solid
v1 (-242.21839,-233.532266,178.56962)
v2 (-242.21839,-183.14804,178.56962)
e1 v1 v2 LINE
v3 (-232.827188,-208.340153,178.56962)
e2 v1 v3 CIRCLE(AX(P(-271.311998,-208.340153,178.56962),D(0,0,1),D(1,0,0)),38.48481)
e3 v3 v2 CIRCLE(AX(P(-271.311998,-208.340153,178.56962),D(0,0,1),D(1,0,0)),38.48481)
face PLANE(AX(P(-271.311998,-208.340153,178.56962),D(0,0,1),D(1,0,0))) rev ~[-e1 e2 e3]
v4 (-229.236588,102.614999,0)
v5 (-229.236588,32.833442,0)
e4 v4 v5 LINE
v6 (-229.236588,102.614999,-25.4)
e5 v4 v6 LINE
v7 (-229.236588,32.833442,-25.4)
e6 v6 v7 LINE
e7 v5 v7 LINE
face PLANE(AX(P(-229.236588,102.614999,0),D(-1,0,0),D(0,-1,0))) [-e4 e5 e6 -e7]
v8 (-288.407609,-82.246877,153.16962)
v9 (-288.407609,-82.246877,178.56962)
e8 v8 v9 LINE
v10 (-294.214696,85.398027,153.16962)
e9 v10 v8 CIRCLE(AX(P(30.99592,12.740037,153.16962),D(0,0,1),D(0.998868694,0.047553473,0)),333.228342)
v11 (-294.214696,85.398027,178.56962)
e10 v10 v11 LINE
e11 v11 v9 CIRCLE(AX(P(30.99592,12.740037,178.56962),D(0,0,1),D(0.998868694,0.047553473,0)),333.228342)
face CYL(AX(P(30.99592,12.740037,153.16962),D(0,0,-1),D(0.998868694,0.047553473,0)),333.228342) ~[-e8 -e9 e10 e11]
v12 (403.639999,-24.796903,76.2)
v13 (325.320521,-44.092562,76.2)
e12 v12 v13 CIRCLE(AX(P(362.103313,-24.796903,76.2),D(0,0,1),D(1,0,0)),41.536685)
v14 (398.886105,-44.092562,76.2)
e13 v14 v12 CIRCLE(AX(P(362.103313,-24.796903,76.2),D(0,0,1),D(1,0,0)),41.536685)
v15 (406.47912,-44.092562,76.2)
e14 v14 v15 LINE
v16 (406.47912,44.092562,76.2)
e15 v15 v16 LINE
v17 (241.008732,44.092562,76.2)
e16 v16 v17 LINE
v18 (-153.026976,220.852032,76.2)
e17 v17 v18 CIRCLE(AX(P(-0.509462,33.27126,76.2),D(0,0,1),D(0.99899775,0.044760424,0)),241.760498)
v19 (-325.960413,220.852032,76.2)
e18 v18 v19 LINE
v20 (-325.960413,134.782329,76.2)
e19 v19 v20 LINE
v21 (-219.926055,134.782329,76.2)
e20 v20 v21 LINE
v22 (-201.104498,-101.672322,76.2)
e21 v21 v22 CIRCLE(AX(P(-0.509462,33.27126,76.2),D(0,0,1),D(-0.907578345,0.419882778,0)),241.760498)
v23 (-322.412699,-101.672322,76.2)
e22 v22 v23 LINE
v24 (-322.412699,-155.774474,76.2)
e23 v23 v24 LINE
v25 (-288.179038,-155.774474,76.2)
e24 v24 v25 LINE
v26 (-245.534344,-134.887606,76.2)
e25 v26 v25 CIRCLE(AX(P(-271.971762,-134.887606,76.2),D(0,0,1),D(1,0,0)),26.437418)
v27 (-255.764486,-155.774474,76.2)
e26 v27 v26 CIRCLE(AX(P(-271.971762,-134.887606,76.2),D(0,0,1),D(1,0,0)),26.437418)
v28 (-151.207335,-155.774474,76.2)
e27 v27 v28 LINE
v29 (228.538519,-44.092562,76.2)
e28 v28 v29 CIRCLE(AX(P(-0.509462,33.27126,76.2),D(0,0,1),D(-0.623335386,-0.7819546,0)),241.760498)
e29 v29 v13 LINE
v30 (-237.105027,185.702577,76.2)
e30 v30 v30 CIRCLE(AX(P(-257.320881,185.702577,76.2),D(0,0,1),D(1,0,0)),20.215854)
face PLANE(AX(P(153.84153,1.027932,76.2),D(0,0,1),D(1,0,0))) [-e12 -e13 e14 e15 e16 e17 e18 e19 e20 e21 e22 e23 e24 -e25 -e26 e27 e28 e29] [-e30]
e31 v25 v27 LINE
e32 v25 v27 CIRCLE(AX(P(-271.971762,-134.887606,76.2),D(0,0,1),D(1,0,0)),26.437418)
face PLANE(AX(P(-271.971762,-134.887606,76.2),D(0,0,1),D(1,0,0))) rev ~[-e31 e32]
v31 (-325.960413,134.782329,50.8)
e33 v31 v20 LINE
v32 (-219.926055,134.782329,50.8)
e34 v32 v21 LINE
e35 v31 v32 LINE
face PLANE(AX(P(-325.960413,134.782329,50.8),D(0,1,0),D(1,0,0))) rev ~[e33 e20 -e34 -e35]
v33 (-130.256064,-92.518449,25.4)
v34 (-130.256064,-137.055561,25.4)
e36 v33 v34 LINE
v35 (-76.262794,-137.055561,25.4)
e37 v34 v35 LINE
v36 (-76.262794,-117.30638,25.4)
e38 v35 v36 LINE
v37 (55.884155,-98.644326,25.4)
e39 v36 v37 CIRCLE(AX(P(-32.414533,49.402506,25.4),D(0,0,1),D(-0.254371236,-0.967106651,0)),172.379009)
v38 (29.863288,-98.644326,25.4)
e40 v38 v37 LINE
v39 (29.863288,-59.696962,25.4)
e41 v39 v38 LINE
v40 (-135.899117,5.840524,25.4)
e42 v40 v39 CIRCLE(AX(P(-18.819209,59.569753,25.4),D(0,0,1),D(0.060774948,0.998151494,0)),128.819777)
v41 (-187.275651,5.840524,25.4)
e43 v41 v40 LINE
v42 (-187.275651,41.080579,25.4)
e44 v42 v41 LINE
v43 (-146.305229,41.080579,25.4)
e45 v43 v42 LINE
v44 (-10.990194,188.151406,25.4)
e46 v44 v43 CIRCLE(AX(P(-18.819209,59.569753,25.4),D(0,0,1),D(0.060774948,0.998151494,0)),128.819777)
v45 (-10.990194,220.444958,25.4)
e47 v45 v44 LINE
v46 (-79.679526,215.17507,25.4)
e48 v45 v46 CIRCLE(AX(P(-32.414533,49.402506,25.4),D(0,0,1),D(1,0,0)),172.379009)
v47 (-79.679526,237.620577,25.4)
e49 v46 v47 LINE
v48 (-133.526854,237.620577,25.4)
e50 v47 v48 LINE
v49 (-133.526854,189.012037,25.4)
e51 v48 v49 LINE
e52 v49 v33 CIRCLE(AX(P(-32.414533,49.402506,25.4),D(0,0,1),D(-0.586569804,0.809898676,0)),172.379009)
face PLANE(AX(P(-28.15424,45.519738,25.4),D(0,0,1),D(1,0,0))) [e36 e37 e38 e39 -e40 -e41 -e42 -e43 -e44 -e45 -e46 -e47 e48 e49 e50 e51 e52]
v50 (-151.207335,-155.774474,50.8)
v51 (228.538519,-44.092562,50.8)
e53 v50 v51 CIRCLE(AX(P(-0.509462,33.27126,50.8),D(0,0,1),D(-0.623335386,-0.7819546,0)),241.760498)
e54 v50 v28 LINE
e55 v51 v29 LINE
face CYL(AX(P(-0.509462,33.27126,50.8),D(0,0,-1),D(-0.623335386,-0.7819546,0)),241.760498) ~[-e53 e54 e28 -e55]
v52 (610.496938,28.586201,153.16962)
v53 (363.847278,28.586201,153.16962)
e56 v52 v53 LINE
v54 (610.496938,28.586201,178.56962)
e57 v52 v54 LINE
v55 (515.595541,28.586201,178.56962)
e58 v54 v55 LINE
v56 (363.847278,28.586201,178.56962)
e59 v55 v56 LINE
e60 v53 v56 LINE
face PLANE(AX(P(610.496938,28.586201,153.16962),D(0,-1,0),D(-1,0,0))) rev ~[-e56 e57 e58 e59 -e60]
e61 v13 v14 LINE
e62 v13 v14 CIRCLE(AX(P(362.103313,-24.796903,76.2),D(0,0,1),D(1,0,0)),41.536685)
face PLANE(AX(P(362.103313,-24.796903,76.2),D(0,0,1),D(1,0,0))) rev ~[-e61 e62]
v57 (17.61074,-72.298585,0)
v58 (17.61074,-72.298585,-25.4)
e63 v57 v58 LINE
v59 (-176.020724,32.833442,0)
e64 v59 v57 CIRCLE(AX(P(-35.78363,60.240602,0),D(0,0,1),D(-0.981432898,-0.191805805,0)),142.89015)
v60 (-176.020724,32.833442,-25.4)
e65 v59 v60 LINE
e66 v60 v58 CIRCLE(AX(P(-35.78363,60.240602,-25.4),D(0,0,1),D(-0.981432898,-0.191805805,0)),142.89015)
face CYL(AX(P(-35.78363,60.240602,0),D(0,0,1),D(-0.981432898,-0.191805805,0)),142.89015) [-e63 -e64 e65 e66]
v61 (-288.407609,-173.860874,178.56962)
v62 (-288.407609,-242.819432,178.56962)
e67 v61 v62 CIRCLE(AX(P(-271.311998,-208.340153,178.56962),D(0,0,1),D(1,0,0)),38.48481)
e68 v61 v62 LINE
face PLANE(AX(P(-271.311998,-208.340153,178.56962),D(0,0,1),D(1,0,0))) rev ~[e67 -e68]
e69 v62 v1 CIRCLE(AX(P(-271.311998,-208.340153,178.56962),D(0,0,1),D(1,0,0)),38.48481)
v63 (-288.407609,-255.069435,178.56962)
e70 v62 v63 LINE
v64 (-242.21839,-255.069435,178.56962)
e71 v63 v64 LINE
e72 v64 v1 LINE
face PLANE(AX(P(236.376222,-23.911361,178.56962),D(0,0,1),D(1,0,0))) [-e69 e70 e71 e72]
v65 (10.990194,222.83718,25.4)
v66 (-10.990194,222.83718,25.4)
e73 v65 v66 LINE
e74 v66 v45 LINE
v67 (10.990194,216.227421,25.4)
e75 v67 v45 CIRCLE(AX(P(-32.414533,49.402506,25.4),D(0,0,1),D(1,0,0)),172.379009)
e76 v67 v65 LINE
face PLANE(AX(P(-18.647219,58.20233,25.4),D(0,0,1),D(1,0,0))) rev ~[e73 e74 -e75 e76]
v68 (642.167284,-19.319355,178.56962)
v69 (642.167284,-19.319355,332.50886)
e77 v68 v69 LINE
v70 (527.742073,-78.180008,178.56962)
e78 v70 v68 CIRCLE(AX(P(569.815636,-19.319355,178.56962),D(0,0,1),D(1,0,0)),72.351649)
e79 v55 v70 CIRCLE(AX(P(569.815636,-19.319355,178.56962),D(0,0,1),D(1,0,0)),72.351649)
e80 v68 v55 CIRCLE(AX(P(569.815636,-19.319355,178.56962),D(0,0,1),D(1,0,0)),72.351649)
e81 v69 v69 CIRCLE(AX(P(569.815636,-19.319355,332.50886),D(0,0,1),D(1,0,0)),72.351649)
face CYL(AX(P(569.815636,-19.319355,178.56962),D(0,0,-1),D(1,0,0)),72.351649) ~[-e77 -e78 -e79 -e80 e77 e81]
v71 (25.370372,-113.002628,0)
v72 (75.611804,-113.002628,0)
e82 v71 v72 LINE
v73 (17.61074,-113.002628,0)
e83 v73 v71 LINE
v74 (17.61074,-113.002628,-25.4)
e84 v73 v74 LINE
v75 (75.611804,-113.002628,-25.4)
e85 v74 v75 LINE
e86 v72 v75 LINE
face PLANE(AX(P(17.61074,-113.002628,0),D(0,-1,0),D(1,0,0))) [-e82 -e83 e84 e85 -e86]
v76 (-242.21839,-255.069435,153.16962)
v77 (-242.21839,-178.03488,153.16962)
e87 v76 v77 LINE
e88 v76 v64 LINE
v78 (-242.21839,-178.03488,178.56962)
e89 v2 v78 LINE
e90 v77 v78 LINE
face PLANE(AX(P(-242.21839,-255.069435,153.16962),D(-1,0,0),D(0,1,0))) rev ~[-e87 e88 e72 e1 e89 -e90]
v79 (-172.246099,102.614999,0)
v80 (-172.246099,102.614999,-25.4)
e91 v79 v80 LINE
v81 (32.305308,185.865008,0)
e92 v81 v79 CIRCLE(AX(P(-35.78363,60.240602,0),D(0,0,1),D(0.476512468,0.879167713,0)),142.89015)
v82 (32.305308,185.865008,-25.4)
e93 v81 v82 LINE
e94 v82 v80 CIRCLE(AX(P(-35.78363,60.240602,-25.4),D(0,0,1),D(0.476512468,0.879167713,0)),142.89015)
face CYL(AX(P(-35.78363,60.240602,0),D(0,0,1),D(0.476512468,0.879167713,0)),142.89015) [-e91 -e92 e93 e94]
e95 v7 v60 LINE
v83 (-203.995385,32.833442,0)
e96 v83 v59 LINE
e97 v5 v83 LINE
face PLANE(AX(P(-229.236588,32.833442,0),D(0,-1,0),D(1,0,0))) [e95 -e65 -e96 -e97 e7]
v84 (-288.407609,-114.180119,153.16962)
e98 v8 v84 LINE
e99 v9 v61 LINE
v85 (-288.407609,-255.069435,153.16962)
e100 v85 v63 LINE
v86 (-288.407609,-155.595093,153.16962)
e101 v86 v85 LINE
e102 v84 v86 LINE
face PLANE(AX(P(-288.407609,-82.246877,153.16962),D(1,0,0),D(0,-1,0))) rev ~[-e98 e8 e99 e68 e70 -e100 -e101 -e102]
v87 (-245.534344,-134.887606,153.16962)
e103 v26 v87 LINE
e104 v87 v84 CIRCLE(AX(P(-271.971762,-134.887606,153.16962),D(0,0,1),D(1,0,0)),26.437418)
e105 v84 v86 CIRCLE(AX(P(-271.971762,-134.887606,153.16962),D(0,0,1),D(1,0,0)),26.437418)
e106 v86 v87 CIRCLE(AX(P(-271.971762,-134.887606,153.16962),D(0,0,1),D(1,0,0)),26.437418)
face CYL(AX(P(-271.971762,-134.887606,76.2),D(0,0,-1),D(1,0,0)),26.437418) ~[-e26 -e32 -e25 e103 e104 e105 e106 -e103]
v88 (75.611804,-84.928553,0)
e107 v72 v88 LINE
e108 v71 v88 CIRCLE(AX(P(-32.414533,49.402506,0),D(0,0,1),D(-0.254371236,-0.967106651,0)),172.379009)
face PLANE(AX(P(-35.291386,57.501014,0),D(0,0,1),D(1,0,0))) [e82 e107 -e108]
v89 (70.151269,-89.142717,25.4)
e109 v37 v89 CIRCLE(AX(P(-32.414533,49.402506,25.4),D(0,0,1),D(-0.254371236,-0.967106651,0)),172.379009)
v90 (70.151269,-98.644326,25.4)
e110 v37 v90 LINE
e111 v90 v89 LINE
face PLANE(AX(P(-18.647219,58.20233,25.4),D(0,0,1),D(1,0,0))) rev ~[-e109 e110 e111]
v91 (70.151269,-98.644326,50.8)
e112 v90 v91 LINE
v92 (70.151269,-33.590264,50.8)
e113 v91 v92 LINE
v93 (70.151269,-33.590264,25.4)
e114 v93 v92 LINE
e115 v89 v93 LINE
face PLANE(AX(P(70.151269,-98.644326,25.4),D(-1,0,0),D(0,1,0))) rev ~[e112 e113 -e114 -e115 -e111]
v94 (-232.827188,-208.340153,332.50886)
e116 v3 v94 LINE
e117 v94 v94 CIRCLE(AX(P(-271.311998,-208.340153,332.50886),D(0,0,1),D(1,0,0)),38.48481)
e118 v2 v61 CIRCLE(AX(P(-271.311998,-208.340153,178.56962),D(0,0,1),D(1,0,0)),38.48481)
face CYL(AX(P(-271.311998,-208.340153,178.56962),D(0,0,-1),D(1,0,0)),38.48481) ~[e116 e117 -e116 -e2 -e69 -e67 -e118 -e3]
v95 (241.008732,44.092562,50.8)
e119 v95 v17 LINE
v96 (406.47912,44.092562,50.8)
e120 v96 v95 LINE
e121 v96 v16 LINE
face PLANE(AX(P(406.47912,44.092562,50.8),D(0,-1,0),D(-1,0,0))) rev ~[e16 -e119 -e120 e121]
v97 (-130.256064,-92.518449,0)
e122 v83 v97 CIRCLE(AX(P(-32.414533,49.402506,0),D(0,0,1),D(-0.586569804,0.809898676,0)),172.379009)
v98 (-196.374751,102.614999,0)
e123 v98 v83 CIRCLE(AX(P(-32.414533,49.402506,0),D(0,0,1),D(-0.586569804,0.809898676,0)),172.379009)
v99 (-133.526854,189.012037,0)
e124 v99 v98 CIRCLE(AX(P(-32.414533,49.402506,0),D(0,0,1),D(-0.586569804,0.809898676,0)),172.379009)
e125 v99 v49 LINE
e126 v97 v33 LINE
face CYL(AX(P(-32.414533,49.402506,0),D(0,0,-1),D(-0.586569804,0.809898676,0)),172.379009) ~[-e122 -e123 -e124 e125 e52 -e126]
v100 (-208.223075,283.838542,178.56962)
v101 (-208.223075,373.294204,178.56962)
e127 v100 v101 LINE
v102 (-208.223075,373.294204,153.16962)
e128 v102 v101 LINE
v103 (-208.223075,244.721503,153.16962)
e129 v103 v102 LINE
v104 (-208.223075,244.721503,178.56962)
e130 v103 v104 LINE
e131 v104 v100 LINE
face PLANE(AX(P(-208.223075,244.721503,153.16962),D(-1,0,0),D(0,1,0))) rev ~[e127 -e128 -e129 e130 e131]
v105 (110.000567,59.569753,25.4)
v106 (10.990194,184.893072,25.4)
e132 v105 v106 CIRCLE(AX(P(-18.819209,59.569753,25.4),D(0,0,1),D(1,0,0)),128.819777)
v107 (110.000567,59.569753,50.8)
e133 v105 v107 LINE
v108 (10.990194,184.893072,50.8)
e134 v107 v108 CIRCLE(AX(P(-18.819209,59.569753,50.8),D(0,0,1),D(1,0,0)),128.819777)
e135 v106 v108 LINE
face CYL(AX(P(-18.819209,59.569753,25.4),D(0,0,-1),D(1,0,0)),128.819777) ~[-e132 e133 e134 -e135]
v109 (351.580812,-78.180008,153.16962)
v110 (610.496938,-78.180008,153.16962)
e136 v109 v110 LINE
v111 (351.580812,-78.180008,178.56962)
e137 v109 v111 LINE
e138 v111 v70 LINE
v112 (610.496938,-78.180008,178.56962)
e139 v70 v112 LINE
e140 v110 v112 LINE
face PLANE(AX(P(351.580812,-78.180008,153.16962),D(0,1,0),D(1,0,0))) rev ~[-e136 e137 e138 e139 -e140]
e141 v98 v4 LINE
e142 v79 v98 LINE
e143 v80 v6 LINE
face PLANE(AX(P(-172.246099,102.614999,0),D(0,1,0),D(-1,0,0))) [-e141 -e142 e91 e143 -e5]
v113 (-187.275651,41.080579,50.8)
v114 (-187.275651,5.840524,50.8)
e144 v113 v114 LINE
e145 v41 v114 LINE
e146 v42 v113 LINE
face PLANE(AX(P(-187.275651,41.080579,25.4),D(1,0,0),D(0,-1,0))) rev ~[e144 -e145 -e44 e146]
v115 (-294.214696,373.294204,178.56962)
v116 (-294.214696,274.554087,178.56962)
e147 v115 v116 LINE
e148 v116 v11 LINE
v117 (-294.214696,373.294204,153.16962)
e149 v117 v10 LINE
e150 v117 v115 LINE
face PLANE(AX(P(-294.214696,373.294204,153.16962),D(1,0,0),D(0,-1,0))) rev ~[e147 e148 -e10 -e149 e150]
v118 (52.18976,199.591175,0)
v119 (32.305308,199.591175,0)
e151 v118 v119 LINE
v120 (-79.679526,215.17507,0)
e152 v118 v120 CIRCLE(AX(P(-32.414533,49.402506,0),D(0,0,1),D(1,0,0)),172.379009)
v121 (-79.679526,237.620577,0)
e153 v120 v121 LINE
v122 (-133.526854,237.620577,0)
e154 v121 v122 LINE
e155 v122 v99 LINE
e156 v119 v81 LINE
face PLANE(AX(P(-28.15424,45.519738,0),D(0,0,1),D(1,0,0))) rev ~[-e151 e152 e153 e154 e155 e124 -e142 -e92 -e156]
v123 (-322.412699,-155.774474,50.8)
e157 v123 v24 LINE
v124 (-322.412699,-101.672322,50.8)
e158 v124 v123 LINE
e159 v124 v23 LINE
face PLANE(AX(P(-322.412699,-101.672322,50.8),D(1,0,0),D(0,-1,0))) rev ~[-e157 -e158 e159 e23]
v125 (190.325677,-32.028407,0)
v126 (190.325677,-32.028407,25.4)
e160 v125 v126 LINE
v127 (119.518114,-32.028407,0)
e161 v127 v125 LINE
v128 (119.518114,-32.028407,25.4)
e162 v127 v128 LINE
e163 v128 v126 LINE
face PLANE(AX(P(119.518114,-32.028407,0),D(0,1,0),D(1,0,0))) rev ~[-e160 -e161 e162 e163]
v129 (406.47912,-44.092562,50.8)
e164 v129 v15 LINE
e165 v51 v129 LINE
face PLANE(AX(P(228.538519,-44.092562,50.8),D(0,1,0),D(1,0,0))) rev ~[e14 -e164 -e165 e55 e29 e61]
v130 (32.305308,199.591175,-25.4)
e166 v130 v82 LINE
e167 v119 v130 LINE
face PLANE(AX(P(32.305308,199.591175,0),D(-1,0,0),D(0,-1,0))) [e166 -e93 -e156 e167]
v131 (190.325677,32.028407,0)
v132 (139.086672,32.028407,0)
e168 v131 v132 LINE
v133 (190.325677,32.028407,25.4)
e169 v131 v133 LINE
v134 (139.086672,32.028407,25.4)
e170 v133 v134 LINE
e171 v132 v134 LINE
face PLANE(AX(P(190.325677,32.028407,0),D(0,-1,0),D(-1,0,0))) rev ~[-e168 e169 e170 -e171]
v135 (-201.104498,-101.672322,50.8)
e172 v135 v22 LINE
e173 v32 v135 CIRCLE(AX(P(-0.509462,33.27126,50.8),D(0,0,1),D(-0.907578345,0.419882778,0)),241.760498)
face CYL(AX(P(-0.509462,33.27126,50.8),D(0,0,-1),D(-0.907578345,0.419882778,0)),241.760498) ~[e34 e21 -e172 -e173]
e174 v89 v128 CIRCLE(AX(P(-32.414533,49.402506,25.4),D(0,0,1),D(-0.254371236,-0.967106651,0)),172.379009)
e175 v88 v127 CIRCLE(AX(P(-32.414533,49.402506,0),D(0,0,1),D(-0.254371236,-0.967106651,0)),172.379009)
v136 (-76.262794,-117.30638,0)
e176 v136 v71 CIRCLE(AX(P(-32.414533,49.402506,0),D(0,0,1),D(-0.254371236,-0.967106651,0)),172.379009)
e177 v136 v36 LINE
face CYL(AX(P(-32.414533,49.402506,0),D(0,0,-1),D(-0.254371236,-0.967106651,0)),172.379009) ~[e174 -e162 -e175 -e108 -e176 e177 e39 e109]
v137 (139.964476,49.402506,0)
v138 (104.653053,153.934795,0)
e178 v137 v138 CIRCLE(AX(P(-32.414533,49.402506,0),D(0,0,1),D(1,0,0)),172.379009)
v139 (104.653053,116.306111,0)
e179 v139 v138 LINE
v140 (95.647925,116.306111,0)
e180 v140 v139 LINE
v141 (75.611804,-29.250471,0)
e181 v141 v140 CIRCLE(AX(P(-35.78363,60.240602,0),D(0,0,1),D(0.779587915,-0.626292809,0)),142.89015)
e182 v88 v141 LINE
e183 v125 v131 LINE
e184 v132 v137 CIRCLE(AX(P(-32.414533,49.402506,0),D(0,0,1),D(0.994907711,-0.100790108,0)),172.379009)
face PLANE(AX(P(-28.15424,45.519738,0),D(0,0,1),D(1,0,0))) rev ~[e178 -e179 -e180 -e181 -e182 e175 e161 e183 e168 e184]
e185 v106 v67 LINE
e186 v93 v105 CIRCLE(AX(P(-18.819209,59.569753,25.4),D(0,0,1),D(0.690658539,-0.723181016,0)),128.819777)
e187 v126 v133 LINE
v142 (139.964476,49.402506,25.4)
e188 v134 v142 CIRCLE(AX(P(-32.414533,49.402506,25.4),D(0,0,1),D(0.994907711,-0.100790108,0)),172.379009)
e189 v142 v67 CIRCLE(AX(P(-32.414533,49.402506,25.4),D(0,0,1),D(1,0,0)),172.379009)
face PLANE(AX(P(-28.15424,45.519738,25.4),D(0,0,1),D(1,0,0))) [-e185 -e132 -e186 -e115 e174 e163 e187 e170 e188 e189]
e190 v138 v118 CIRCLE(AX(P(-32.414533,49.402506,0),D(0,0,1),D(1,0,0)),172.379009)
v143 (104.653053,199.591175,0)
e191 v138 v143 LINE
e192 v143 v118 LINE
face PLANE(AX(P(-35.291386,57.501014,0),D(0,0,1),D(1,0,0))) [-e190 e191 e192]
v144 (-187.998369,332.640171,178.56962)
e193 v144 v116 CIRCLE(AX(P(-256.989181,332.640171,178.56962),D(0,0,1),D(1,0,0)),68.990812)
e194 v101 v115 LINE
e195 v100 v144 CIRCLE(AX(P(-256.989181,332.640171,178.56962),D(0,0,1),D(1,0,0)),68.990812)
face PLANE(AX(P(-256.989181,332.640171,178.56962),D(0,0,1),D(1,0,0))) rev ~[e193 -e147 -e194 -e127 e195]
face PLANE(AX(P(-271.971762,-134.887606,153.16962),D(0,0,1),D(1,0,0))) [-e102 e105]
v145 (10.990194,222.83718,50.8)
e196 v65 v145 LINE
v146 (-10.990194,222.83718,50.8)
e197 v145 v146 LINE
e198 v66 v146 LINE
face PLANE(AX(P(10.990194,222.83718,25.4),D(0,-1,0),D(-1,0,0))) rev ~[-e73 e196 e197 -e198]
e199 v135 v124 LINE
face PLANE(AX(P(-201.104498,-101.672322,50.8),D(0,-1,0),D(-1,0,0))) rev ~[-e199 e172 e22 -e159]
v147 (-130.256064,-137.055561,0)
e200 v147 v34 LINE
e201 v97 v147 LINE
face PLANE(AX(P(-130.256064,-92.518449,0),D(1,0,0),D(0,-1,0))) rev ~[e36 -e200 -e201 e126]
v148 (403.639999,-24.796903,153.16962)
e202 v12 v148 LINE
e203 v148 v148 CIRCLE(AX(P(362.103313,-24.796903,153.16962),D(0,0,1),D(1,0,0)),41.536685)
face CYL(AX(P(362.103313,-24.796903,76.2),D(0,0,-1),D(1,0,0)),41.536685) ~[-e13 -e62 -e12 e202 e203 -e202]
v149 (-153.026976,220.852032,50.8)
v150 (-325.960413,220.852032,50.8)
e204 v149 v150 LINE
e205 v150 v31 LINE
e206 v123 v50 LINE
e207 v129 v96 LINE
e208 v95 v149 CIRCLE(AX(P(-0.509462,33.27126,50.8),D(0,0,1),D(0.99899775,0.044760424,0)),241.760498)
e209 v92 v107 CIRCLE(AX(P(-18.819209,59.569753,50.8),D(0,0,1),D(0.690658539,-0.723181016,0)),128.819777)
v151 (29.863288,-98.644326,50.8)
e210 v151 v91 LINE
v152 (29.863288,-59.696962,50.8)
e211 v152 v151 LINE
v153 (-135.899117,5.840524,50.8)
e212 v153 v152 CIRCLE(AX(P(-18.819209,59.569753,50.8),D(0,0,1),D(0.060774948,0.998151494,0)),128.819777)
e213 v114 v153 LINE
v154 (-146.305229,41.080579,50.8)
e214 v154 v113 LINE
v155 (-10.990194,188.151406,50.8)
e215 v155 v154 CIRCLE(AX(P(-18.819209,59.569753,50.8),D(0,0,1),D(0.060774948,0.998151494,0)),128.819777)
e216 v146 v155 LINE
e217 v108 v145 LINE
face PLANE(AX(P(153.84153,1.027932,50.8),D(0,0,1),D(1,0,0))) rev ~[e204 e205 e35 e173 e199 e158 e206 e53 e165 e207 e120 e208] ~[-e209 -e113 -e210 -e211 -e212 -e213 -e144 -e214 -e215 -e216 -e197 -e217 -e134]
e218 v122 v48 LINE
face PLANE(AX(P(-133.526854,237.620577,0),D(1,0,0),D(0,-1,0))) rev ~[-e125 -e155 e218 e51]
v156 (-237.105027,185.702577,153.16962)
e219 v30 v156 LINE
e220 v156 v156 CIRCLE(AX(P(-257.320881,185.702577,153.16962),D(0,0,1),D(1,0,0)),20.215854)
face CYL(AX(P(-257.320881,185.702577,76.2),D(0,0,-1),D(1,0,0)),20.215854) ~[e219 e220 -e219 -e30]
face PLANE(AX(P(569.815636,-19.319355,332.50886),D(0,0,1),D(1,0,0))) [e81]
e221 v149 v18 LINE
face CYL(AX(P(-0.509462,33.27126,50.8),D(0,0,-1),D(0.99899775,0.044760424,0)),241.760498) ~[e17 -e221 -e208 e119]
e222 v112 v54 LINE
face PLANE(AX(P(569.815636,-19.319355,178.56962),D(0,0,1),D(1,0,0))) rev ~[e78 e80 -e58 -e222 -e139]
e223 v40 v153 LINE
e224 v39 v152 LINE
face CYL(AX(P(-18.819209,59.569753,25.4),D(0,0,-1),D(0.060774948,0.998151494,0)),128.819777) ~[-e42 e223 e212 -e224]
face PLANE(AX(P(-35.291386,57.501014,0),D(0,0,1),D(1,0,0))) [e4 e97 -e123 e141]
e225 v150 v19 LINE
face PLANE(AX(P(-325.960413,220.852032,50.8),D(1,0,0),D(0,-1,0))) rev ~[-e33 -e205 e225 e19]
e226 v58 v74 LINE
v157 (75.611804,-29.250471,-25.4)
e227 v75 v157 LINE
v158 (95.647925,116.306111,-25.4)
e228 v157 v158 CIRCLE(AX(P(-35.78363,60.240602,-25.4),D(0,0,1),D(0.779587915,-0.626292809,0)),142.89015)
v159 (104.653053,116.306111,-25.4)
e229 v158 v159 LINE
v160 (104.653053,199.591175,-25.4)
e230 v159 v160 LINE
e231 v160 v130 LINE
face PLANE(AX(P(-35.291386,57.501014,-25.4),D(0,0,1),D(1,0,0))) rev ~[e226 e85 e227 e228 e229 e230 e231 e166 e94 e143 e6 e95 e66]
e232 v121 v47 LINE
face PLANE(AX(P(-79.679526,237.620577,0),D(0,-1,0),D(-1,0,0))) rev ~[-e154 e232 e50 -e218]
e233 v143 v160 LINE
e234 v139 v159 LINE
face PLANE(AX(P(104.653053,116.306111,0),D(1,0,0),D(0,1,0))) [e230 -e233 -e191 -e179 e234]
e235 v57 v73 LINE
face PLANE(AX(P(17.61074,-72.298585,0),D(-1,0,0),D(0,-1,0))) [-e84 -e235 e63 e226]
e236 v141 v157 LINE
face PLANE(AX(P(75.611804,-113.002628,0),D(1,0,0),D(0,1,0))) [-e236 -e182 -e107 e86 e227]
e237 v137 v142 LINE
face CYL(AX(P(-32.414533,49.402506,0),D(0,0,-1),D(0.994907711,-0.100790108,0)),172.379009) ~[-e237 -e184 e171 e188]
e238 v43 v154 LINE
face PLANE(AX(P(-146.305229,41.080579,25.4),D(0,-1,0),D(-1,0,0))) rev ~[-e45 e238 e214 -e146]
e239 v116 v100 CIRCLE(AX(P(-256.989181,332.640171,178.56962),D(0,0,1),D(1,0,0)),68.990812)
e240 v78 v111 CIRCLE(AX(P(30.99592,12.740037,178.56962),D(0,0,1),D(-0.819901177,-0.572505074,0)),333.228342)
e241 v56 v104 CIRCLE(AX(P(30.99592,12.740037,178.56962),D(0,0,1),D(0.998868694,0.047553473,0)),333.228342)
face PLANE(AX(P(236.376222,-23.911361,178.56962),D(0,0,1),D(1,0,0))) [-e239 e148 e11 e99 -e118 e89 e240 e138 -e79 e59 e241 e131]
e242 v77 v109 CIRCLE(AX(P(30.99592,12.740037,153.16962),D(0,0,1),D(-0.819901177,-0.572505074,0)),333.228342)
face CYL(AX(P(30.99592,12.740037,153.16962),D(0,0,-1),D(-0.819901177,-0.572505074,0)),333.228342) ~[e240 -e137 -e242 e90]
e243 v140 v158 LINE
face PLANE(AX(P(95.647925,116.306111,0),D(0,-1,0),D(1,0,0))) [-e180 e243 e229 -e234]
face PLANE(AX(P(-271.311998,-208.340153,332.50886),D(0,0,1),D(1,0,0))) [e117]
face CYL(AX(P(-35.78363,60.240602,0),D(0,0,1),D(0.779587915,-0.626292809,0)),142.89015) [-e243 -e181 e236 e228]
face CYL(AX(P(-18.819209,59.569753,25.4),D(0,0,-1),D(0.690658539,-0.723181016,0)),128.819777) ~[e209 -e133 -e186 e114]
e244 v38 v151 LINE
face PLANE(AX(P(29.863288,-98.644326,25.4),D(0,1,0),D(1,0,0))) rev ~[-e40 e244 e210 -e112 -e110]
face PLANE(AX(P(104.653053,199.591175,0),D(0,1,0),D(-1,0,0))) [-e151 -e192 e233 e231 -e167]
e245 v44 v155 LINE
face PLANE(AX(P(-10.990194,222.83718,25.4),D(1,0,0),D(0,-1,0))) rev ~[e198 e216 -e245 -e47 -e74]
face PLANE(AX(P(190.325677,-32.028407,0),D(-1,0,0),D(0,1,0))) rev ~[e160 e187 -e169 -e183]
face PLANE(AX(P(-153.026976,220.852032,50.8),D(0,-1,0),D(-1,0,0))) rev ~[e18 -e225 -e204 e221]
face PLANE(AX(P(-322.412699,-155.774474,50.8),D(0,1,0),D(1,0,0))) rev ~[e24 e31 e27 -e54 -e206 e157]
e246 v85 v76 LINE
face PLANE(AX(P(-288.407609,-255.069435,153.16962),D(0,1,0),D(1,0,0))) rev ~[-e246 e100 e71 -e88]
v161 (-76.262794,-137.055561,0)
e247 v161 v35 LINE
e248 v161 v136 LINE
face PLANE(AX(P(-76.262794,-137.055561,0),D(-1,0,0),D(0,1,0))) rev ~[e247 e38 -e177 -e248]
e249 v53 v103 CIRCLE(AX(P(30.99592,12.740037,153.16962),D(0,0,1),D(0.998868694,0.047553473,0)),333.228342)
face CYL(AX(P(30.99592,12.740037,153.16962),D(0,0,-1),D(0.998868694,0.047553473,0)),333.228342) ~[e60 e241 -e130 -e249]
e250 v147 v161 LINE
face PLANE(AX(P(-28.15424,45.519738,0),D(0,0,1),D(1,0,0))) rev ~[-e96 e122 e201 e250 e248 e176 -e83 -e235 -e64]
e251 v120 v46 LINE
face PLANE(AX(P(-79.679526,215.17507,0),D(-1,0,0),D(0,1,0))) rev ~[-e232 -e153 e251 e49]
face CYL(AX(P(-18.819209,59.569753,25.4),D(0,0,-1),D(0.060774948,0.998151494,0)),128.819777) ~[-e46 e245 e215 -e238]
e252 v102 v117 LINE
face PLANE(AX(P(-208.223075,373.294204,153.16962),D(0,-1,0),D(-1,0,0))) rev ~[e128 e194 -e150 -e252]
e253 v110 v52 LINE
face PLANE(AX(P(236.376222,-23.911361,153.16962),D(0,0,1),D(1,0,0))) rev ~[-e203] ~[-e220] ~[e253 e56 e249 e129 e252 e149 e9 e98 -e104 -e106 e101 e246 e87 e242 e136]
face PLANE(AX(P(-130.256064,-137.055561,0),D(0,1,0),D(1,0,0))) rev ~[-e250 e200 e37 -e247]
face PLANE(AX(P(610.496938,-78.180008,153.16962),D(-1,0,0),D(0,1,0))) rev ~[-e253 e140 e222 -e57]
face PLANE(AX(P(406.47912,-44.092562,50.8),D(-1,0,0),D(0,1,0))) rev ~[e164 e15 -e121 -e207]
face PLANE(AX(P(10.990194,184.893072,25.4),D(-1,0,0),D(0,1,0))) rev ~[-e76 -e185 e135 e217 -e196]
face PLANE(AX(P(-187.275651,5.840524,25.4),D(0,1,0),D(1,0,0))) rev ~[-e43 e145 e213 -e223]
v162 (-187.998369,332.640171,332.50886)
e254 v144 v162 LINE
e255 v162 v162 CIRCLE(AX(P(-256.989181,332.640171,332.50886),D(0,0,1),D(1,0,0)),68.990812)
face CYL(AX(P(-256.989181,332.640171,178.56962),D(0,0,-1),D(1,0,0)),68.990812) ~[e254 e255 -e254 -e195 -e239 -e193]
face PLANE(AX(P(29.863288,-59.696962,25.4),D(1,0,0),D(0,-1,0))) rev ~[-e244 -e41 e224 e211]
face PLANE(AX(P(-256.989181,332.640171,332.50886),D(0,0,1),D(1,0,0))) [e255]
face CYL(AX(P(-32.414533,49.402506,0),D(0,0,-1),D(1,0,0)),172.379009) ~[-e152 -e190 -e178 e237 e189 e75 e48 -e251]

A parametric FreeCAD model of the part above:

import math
import FreeCAD as App
import Part
import Sketcher
from FreeCAD import Vector
Q = App.Units.Quantity

doc = App.newDocument("Part")
body = doc.addObject("PartDesign::Body", "Body")

sketch1 = body.newObject("Sketcher::SketchObject", "Sketch")
sketch1.AttachmentSupport = (doc.getObject("XY_Plane"), [""])
sketch1.MapMode = "FlatFace"
sketch1.addGeometry([
    Part.ArcOfCircle(Part.Circle(Vector(-32, 49, 0), Vector(0, 0, 1), 172), math.radians(-5.78), math.radians(0)),
    Part.ArcOfCircle(Part.Circle(Vector(-32, 49, 0), Vector(0, 0, 1), 172), math.radians(0), math.radians(106)),
    Part.LineSegment(Vector(-80, 215, 0), Vector(-80, 238, 0)),
    Part.LineSegment(Vector(-80, 238, 0), Vector(-134, 238, 0)),
    Part.LineSegment(Vector(-134, 238, 0), Vector(-134, 189, 0)),
    Part.ArcOfCircle(Part.Circle(Vector(-32, 49, 0), Vector(0, 0, 1), 172), math.radians(126), math.radians(235)),
    Part.LineSegment(Vector(-130, -93, 0), Vector(-130, -137, 0)),
    Part.LineSegment(Vector(-130, -137, 0), Vector(-76, -137, 0)),
    Part.LineSegment(Vector(-76, -137, 0), Vector(-76, -117, 0)),
    Part.ArcOfCircle(Part.Circle(Vector(-32, 49, 0), Vector(0, 0, 1), 172), math.radians(-105), math.radians(-28)),
    Part.LineSegment(Vector(120, -32, 0), Vector(190, -32, 0)),
    Part.LineSegment(Vector(190, -32, 0), Vector(190, 32, 0)),
    Part.LineSegment(Vector(190, 32, 0), Vector(139, 32, 0)),
], False)
sketch1.addConstraint([
    Sketcher.Constraint("Tangent", 0, 2, 1, 1),
    Sketcher.Constraint("Coincident", 1, 2, 2, 1),
    Sketcher.Constraint("Coincident", 2, 2, 3, 1),
    Sketcher.Constraint("Coincident", 3, 2, 4, 1),
    Sketcher.Constraint("Coincident", 4, 2, 5, 1),
    Sketcher.Constraint("Coincident", 5, 2, 6, 1),
    Sketcher.Constraint("Coincident", 6, 2, 7, 1),
    Sketcher.Constraint("Coincident", 7, 2, 8, 1),
    Sketcher.Constraint("Coincident", 8, 2, 9, 1),
    Sketcher.Constraint("Coincident", 9, 2, 10, 1),
    Sketcher.Constraint("Coincident", 10, 2, 11, 1),
    Sketcher.Constraint("Coincident", 11, 2, 12, 1),
    Sketcher.Constraint("Coincident", 12, 2, 0, 1),
    Sketcher.Constraint("Vertical", 2),
    Sketcher.Constraint("Horizontal", 3),
    Sketcher.Constraint("Vertical", 4),
    Sketcher.Constraint("Vertical", 6),
    Sketcher.Constraint("Horizontal", 7),
    Sketcher.Constraint("Vertical", 8),
    Sketcher.Constraint("Horizontal", 10),
    Sketcher.Constraint("Vertical", 11),
    Sketcher.Constraint("Horizontal", 12),
    Sketcher.Constraint("Coincident", 5, 3, 0, 3),
    Sketcher.Constraint("Coincident", 9, 3, 0, 3),
    Sketcher.Constraint("Equal", 0, 1),
    Sketcher.Constraint("Equal", 1, 5),
    Sketcher.Constraint("Equal", 5, 9),
    Sketcher.Constraint("Horizontal", 9, 3, 0, 2),
    Sketcher.Constraint("Radius", 0, Q("172.379009 mm")),
    Sketcher.Constraint("DistanceX", 3, 2, 1, 3, Q("3.9808001 in")),
    Sketcher.Constraint("DistanceX", 7, 1, 7, 2, Q("53.99327 mm")),
    Sketcher.Constraint("DistanceY", 4, 2, 4, 1, Q("48.608541 mm")),
    Sketcher.Constraint("DistanceY", 6, 2, 6, 1, Q("44.537112 mm")),
    Sketcher.Constraint("DistanceY", 8, 1, 8, 2, Q("19.749181 mm")),
    Sketcher.Constraint("DistanceX", 0, 2, 10, 2, Q("50.361202 mm")),
    Sketcher.Constraint("DistanceY", 11, 2, 0, 2, Q("17.374099 mm")),
    Sketcher.Constraint("DistanceX", 3, 2, 3, 1, Q("53.847328 mm")),
    Sketcher.Constraint("DistanceX", 10, 1, 10, 2, Q("70.807564 mm")),
    Sketcher.Constraint("DistanceY", -1, 1, 1, 2, Q("215.17507 mm")),
    Sketcher.Constraint("DistanceX", 0, 3, -1, 1, Q("32.414533 mm")),
])
pad1 = body.newObject("PartDesign::Pad", "Pad")
pad1.Profile = sketch1
pad1.Length = Q("1 in")

sketch2 = body.newObject("Sketcher::SketchObject", "Sketch001")
sketch2.AttachmentSupport = (doc.getObject("XY_Plane"), [""])
sketch2.MapMode = "FlatFace"
sketch2.addGeometry([
    Part.ArcOfCircle(Part.Circle(Vector(-36, 60, 0), Vector(0, 0, 1), 143), math.radians(-39), math.radians(23)),
    Part.LineSegment(Vector(96, 116, 0), Vector(105, 116, 0)),
    Part.LineSegment(Vector(105, 116, 0), Vector(105, 200, 0)),
    Part.LineSegment(Vector(105, 200, 0), Vector(32, 200, 0)),
    Part.LineSegment(Vector(32, 200, 0), Vector(32, 186, 0)),
    Part.ArcOfCircle(Part.Circle(Vector(-36, 60, 0), Vector(0, 0, 1), 143), math.radians(62), math.radians(163)),
    Part.LineSegment(Vector(-172, 103, 0), Vector(-229, 103, 0)),
    Part.LineSegment(Vector(-229, 103, 0), Vector(-229, 33, 0)),
    Part.LineSegment(Vector(-229, 33, 0), Vector(-176, 33, 0)),
    Part.ArcOfCircle(Part.Circle(Vector(-36, 60, 0), Vector(0, 0, 1), 143), math.radians(-169), math.radians(-68)),
    Part.LineSegment(Vector(18, -72, 0), Vector(18, -113, 0)),
    Part.LineSegment(Vector(18, -113, 0), Vector(76, -113, 0)),
    Part.LineSegment(Vector(76, -113, 0), Vector(76, -29, 0)),
], False)
sketch2.addConstraint([
    Sketcher.Constraint("Coincident", 0, 2, 1, 1),
    Sketcher.Constraint("Coincident", 1, 2, 2, 1),
    Sketcher.Constraint("Coincident", 2, 2, 3, 1),
    Sketcher.Constraint("Coincident", 3, 2, 4, 1),
    Sketcher.Constraint("Coincident", 4, 2, 5, 1),
    Sketcher.Constraint("Coincident", 5, 2, 6, 1),
    Sketcher.Constraint("Coincident", 6, 2, 7, 1),
    Sketcher.Constraint("Coincident", 7, 2, 8, 1),
    Sketcher.Constraint("Coincident", 8, 2, 9, 1),
    Sketcher.Constraint("Coincident", 9, 2, 10, 1),
    Sketcher.Constraint("Coincident", 10, 2, 11, 1),
    Sketcher.Constraint("Coincident", 11, 2, 12, 1),
    Sketcher.Constraint("Coincident", 12, 2, 0, 1),
    Sketcher.Constraint("Horizontal", 1),
    Sketcher.Constraint("Vertical", 2),
    Sketcher.Constraint("Horizontal", 3),
    Sketcher.Constraint("Vertical", 4),
    Sketcher.Constraint("Horizontal", 6),
    Sketcher.Constraint("Vertical", 7),
    Sketcher.Constraint("Horizontal", 8),
    Sketcher.Constraint("Vertical", 10),
    Sketcher.Constraint("Horizontal", 11),
    Sketcher.Constraint("Vertical", 12),
    Sketcher.Constraint("Coincident", 5, 3, 0, 3),
    Sketcher.Constraint("Coincident", 9, 3, 0, 3),
    Sketcher.Constraint("Equal", 0, 5),
    Sketcher.Constraint("Equal", 5, 9),
    Sketcher.Constraint("Radius", 0, Q("142.89015 mm")),
    Sketcher.Constraint("DistanceX", 1, 1, 1, 2, Q("9.005128 mm")),
    Sketcher.Constraint("DistanceX", 6, 2, 6, 1, Q("56.990489 mm")),
    Sketcher.Constraint("DistanceX", 5, 2, -1, 1, Q("172.246099 mm")),
    Sketcher.Constraint("DistanceY", -1, 1, 5, 2, Q("102.614999 mm")),
    Sketcher.Constraint("DistanceX", 3, 2, 3, 1, Q("72.347745 mm")),
    Sketcher.Constraint("DistanceX", 8, 1, 8, 2, Q("53.215864 mm")),
    Sketcher.Constraint("DistanceX", 11, 1, 11, 2, Q("58.001064 mm")),
    Sketcher.Constraint("DistanceY", 2, 1, 2, 2, Q("83.285064 mm")),
    Sketcher.Constraint("DistanceY", 4, 2, 4, 1, Q("13.726166 mm")),
    Sketcher.Constraint("DistanceY", 7, 2, 7, 1, Q("69.781557 mm")),
    Sketcher.Constraint("DistanceY", 10, 2, 10, 1, Q("40.704043 mm")),
    Sketcher.Constraint("DistanceY", 12, 1, 12, 2, Q("83.752157 mm")),
])
pad2 = body.newObject("PartDesign::Pad", "Pad001")
pad2.Profile = sketch2
pad2.Length = Q("1 in")
pad2.Reversed = True

sketch3 = body.newObject("Sketcher::SketchObject", "Sketch002")
sketch3.AttachmentSupport = (doc.getObject("XY_Plane"), [""])
sketch3.MapMode = "FlatFace"
sketch3.AttachmentOffset = App.Placement(Vector(0, 0, 1 * 25.4), App.Rotation())
sketch3.addGeometry([
    Part.ArcOfCircle(Part.Circle(Vector(-19, 60, 0), Vector(0, 0, 1), 129), math.radians(-46), math.radians(0)),
    Part.ArcOfCircle(Part.Circle(Vector(-19, 60, 0), Vector(0, 0, 1), 129), math.radians(0), math.radians(77)),
    Part.LineSegment(Vector(11, 185, 0), Vector(11, 223, 0)),
    Part.LineSegment(Vector(11, 223, 0), Vector(-11, 223, 0)),
    Part.LineSegment(Vector(-11, 223, 0), Vector(-11, 188, 0)),
    Part.ArcOfCircle(Part.Circle(Vector(-19, 60, 0), Vector(0, 0, 1), 129), math.radians(87), math.radians(188)),
    Part.LineSegment(Vector(-146, 41, 0), Vector(-187, 41, 0)),
    Part.LineSegment(Vector(-187, 41, 0), Vector(-187, 6, 0)),
    Part.LineSegment(Vector(-187, 6, 0), Vector(-136, 6, 0)),
    Part.ArcOfCircle(Part.Circle(Vector(-19, 60, 0), Vector(0, 0, 1), 129), math.radians(-155), math.radians(-68)),
    Part.LineSegment(Vector(30, -60, 0), Vector(30, -99, 0)),
    Part.LineSegment(Vector(30, -99, 0), Vector(70, -99, 0)),
    Part.LineSegment(Vector(70, -99, 0), Vector(70, -34, 0)),
], False)
sketch3.addConstraint([
    Sketcher.Constraint("Tangent", 0, 2, 1, 1),
    Sketcher.Constraint("Coincident", 1, 2, 2, 1),
    Sketcher.Constraint("Coincident", 2, 2, 3, 1),
    Sketcher.Constraint("Coincident", 3, 2, 4, 1),
    Sketcher.Constraint("Coincident", 4, 2, 5, 1),
    Sketcher.Constraint("Coincident", 5, 2, 6, 1),
    Sketcher.Constraint("Coincident", 6, 2, 7, 1),
    Sketcher.Constraint("Coincident", 7, 2, 8, 1),
    Sketcher.Constraint("Coincident", 8, 2, 9, 1),
    Sketcher.Constraint("Coincident", 9, 2, 10, 1),
    Sketcher.Constraint("Coincident", 10, 2, 11, 1),
    Sketcher.Constraint("Coincident", 11, 2, 12, 1),
    Sketcher.Constraint("Coincident", 12, 2, 0, 1),
    Sketcher.Constraint("Vertical", 2),
    Sketcher.Constraint("Horizontal", 3),
    Sketcher.Constraint("Vertical", 4),
    Sketcher.Constraint("Horizontal", 6),
    Sketcher.Constraint("Vertical", 7),
    Sketcher.Constraint("Horizontal", 8),
    Sketcher.Constraint("Vertical", 10),
    Sketcher.Constraint("Horizontal", 11),
    Sketcher.Constraint("Vertical", 12),
    Sketcher.Constraint("Coincident", 5, 3, 0, 3),
    Sketcher.Constraint("Coincident", 9, 3, 0, 3),
    Sketcher.Constraint("Equal", 0, 1),
    Sketcher.Constraint("Equal", 1, 5),
    Sketcher.Constraint("Equal", 5, 9),
    Sketcher.Constraint("Horizontal", 9, 3, 0, 2),
    Sketcher.Constraint("Radius", 0, Q("128.819777 mm")),
    Sketcher.Constraint("DistanceX", 3, 2, 3, 1, Q("21.980388 mm")),
    Sketcher.Constraint("DistanceX", 6, 2, 6, 1, Q("40.970422 mm")),
    Sketcher.Constraint("DistanceX", 11, 1, 11, 2, Q("40.287981 mm")),
    Sketcher.Constraint("DistanceX", 8, 1, 8, 2, Q("51.376534 mm")),
    Sketcher.Constraint("DistanceY", 2, 1, 2, 2, Q("37.944108 mm")),
    Sketcher.Constraint("DistanceY", 4, 2, 4, 1, Q("34.685774 mm")),
    Sketcher.Constraint("DistanceY", 7, 2, 7, 1, Q("35.240056 mm")),
    Sketcher.Constraint("DistanceY", 10, 2, 10, 1, Q("38.947364 mm")),
    Sketcher.Constraint("DistanceY", 12, 1, 12, 2, Q("65.054062 mm")),
    Sketcher.Constraint("DistanceX", 0, 3, -1, 1, Q("18.819209 mm")),
    Sketcher.Constraint("DistanceY", -1, 1, 2, 2, Q("222.83718 mm")),
])
pad3 = body.newObject("PartDesign::Pad", "Pad002")
pad3.Profile = sketch3
pad3.Length = Q("1 in")

sketch4 = body.newObject("Sketcher::SketchObject", "Sketch003")
sketch4.AttachmentSupport = (doc.getObject("XY_Plane"), [""])
sketch4.MapMode = "FlatFace"
sketch4.AttachmentOffset = App.Placement(Vector(0, 0, 2 * 25.4), App.Rotation())
sketch4.addGeometry([
    Part.LineSegment(Vector(229, -44, 0), Vector(406, -44, 0)),
    Part.LineSegment(Vector(406, -44, 0), Vector(406, 44, 0)),
    Part.LineSegment(Vector(406, 44, 0), Vector(241, 44, 0)),
    Part.ArcOfCircle(Part.Circle(Vector(-1, 33, 0), Vector(0, 0, 1), 242), math.radians(3), math.radians(129)),
    Part.LineSegment(Vector(-153, 221, 0), Vector(-326, 221, 0)),
    Part.LineSegment(Vector(-326, 221, 0), Vector(-326, 135, 0)),
    Part.LineSegment(Vector(-326, 135, 0), Vector(-220, 135, 0)),
    Part.ArcOfCircle(Part.Circle(Vector(-1, 33, 0), Vector(0, 0, 1), 242), math.radians(155), math.radians(214)),
    Part.LineSegment(Vector(-201, -102, 0), Vector(-322, -102, 0)),
    Part.LineSegment(Vector(-322, -102, 0), Vector(-322, -156, 0)),
    Part.LineSegment(Vector(-322, -156, 0), Vector(-151, -156, 0)),
    Part.ArcOfCircle(Part.Circle(Vector(-1, 33, 0), Vector(0, 0, 1), 242), math.radians(-129), math.radians(-19)),
], False)
sketch4.addConstraint([
    Sketcher.Constraint("Coincident", 0, 2, 1, 1),
    Sketcher.Constraint("Coincident", 1, 2, 2, 1),
    Sketcher.Constraint("Coincident", 2, 2, 3, 1),
    Sketcher.Constraint("Coincident", 3, 2, 4, 1),
    Sketcher.Constraint("Coincident", 4, 2, 5, 1),
    Sketcher.Constraint("Coincident", 5, 2, 6, 1),
    Sketcher.Constraint("Coincident", 6, 2, 7, 1),
    Sketcher.Constraint("Coincident", 7, 2, 8, 1),
    Sketcher.Constraint("Coincident", 8, 2, 9, 1),
    Sketcher.Constraint("Coincident", 9, 2, 10, 1),
    Sketcher.Constraint("Coincident", 10, 2, 11, 1),
    Sketcher.Constraint("Coincident", 11, 2, 0, 1),
    Sketcher.Constraint("Horizontal", 0),
    Sketcher.Constraint("Vertical", 1),
    Sketcher.Constraint("Horizontal", 2),
    Sketcher.Constraint("Horizontal", 4),
    Sketcher.Constraint("Vertical", 5),
    Sketcher.Constraint("Horizontal", 6),
    Sketcher.Constraint("Horizontal", 8),
    Sketcher.Constraint("Vertical", 9),
    Sketcher.Constraint("Horizontal", 10),
    Sketcher.Constraint("Coincident", 7, 3, 3, 3),
    Sketcher.Constraint("Coincident", 11, 3, 3, 3),
    Sketcher.Constraint("Equal", 3, 7),
    Sketcher.Constraint("Equal", 7, 11),
    Sketcher.Constraint("Radius", 3, Q("241.760498 mm")),
    Sketcher.Constraint("DistanceX", 0, 1, 0, 2, Q("177.940601 mm")),
    Sketcher.Constraint("DistanceX", 8, 2, 8, 1, Q("121.308202 mm")),
    Sketcher.Constraint("DistanceX", 7, 2, -1, 1, Q("7.9174999 in")),
    Sketcher.Constraint("DistanceX", 2, 2, 2, 1, Q("165.470388 mm")),
    Sketcher.Constraint("DistanceX", 4, 2, 4, 1, Q("172.933436 mm")),
    Sketcher.Constraint("DistanceX", 6, 1, 6, 2, Q("106.034358 mm")),
    Sketcher.Constraint("DistanceX", 10, 1, 10, 2, Q("171.205364 mm")),
    Sketcher.Constraint("DistanceY", 1, 1, 1, 2, Q("88.185124 mm")),
    Sketcher.Constraint("DistanceY", 5, 2, 5, 1, Q("86.069703 mm")),
    Sketcher.Constraint("DistanceY", 9, 2, 9, 1, Q("54.102153 mm")),
    Sketcher.Constraint("DistanceY", -1, 1, 3, 3, Q("33.27126 mm")),
])
pad4 = body.newObject("PartDesign::Pad", "Pad003")
pad4.Profile = sketch4
pad4.Length = Q("1 in")

sketch5 = body.newObject("Sketcher::SketchObject", "Sketch004")
sketch5.AttachmentSupport = (doc.getObject("XY_Plane"), [""])
sketch5.MapMode = "FlatFace"
sketch5.AttachmentOffset = App.Placement(Vector(0, 0, 3 * 25.4), App.Rotation())
sketch5.addGeometry([
    Part.Circle(Vector(-272, -135, 0), Vector(0, 0, 1), 26),
    Part.Circle(Vector(-257, 186, 0), Vector(0, 0, 1), 20),
    Part.Circle(Vector(362, -25, 0), Vector(0, 0, 1), 42),
], False)
sketch5.addConstraint([
    Sketcher.Constraint("Diameter", 1, Q("40.431708 mm")),
    Sketcher.Constraint("Diameter", 2, Q("83.073371 mm")),
    Sketcher.Constraint("Diameter", 0, Q("52.874836 mm")),
    Sketcher.Constraint("DistanceX", 1, 3, -1, 1, Q("257.320881 mm")),
    Sketcher.Constraint("DistanceX", 0, 3, 1, 3, Q("14.650881 mm")),
    Sketcher.Constraint("DistanceY", 2, 3, 1, 3, Q("210.49948 mm")),
    Sketcher.Constraint("DistanceY", 0, 3, -1, 1, Q("134.887606 mm")),
    Sketcher.Constraint("DistanceY", -1, 1, 1, 3, Q("185.702577 mm")),
    Sketcher.Constraint("DistanceX", -1, 1, 2, 3, Q("362.103313 mm")),
])
pad5 = body.newObject("PartDesign::Pad", "Pad004")
pad5.Profile = sketch5
pad5.Length = Q("3.0303 in")

sketch6 = body.newObject("Sketcher::SketchObject", "Sketch005")
sketch6.AttachmentSupport = (doc.getObject("XY_Plane"), [""])
sketch6.MapMode = "FlatFace"
sketch6.AttachmentOffset = App.Placement(Vector(0, 0, 6.0303 * 25.4), App.Rotation())
sketch6.addGeometry([
    Part.LineSegment(Vector(352, -78, 0), Vector(610, -78, 0)),
    Part.LineSegment(Vector(610, -78, 0), Vector(610, 29, 0)),
    Part.LineSegment(Vector(610, 29, 0), Vector(364, 29, 0)),
    Part.ArcOfCircle(Part.Circle(Vector(31, 13, 0), Vector(0, 0, 1), 333), math.radians(3), math.radians(136)),
    Part.LineSegment(Vector(-208, 245, 0), Vector(-208, 373, 0)),
    Part.LineSegment(Vector(-208, 373, 0), Vector(-294, 373, 0)),
    Part.LineSegment(Vector(-294, 373, 0), Vector(-294, 85, 0)),
    Part.ArcOfCircle(Part.Circle(Vector(31, 13, 0), Vector(0, 0, 1), 333), math.radians(167), math.radians(197)),
    Part.LineSegment(Vector(-288, -82, 0), Vector(-288, -255, 0)),
    Part.LineSegment(Vector(-288, -255, 0), Vector(-242, -255, 0)),
    Part.LineSegment(Vector(-242, -255, 0), Vector(-242, -178, 0)),
    Part.ArcOfCircle(Part.Circle(Vector(31, 13, 0), Vector(0, 0, 1), 333), math.radians(-145), math.radians(-16)),
], False)
sketch6.addConstraint([
    Sketcher.Constraint("Coincident", 0, 2, 1, 1),
    Sketcher.Constraint("Coincident", 1, 2, 2, 1),
    Sketcher.Constraint("Coincident", 2, 2, 3, 1),
    Sketcher.Constraint("Coincident", 3, 2, 4, 1),
    Sketcher.Constraint("Coincident", 4, 2, 5, 1),
    Sketcher.Constraint("Coincident", 5, 2, 6, 1),
    Sketcher.Constraint("Coincident", 6, 2, 7, 1),
    Sketcher.Constraint("Coincident", 7, 2, 8, 1),
    Sketcher.Constraint("Coincident", 8, 2, 9, 1),
    Sketcher.Constraint("Coincident", 9, 2, 10, 1),
    Sketcher.Constraint("Coincident", 10, 2, 11, 1),
    Sketcher.Constraint("Coincident", 11, 2, 0, 1),
    Sketcher.Constraint("Horizontal", 0),
    Sketcher.Constraint("Vertical", 1),
    Sketcher.Constraint("Horizontal", 2),
    Sketcher.Constraint("Vertical", 4),
    Sketcher.Constraint("Horizontal", 5),
    Sketcher.Constraint("Vertical", 6),
    Sketcher.Constraint("Vertical", 8),
    Sketcher.Constraint("Horizontal", 9),
    Sketcher.Constraint("Vertical", 10),
    Sketcher.Constraint("Coincident", 7, 3, 3, 3),
    Sketcher.Constraint("Coincident", 11, 3, 3, 3),
    Sketcher.Constraint("Equal", 3, 7),
    Sketcher.Constraint("Equal", 7, 11),
    Sketcher.Constraint("Radius", 3, Q("333.228342 mm")),
    Sketcher.Constraint("DistanceY", 4, 1, 4, 2, Q("128.572702 mm")),
    Sketcher.Constraint("DistanceX", 2, 2, 2, 1, Q("246.64966 mm")),
    Sketcher.Constraint("DistanceX", 5, 2, 5, 1, Q("85.991621 mm")),
    Sketcher.Constraint("DistanceX", 9, 1, 9, 2, Q("46.189219 mm")),
    Sketcher.Constraint("DistanceY", 1, 1, 1, 2, Q("106.766209 mm")),
    Sketcher.Constraint("DistanceY", -1, 1, 1, 2, Q("28.586201 mm")),
    Sketcher.Constraint("DistanceX", 0, 1, 0, 2, Q("258.916126 mm")),
    Sketcher.Constraint("DistanceY", 6, 2, 6, 1, Q("287.896178 mm")),
    Sketcher.Constraint("DistanceY", 8, 2, 8, 1, Q("172.822557 mm")),
    Sketcher.Constraint("DistanceY", 10, 1, 10, 2, Q("77.034555 mm")),
    Sketcher.Constraint("DistanceX", -1, 1, 3, 3, Q("30.99592 mm")),
])
pad6 = body.newObject("PartDesign::Pad", "Pad005")
pad6.Profile = sketch6
pad6.Length = Q("1 in")

sketch7 = body.newObject("Sketcher::SketchObject", "Sketch006")
sketch7.AttachmentSupport = (doc.getObject("XY_Plane"), [""])
sketch7.MapMode = "FlatFace"
sketch7.AttachmentOffset = App.Placement(Vector(0, 0, 7.0303 * 25.4), App.Rotation())
sketch7.addGeometry([
    Part.Circle(Vector(-271, -208, 0), Vector(0, 0, 1), 38),
    Part.Circle(Vector(-257, 333, 0), Vector(0, 0, 1), 69),
    Part.Circle(Vector(570, -19, 0), Vector(0, 0, 1), 72),
], False)
sketch7.addConstraint([
    Sketcher.Constraint("Diameter", 0, Q("3.0303 in")),
    Sketcher.Constraint("Diameter", 1, Q("137.981624 mm")),
    Sketcher.Constraint("Diameter", 2, Q("144.703297 mm")),
    Sketcher.Constraint("DistanceX", 0, 3, -1, 1, Q("271.311998 mm")),
    Sketcher.Constraint("DistanceX", 1, 3, -1, 1, Q("256.989181 mm")),
    Sketcher.Constraint("DistanceY", -1, 1, 1, 3, Q("332.640171 mm")),
    Sketcher.Constraint("DistanceY", 0, 3, -1, 1, Q("208.340153 mm")),
    Sketcher.Constraint("DistanceX", -1, 1, 2, 3, Q("569.815636 mm")),
    Sketcher.Constraint("DistanceY", 2, 3, -1, 1, Q("19.319355 mm")),
])
pad7 = body.newObject("PartDesign::Pad", "Pad006")
pad7.Profile = sketch7
pad7.Length = Q("6.0606 in")

doc.recompute()
